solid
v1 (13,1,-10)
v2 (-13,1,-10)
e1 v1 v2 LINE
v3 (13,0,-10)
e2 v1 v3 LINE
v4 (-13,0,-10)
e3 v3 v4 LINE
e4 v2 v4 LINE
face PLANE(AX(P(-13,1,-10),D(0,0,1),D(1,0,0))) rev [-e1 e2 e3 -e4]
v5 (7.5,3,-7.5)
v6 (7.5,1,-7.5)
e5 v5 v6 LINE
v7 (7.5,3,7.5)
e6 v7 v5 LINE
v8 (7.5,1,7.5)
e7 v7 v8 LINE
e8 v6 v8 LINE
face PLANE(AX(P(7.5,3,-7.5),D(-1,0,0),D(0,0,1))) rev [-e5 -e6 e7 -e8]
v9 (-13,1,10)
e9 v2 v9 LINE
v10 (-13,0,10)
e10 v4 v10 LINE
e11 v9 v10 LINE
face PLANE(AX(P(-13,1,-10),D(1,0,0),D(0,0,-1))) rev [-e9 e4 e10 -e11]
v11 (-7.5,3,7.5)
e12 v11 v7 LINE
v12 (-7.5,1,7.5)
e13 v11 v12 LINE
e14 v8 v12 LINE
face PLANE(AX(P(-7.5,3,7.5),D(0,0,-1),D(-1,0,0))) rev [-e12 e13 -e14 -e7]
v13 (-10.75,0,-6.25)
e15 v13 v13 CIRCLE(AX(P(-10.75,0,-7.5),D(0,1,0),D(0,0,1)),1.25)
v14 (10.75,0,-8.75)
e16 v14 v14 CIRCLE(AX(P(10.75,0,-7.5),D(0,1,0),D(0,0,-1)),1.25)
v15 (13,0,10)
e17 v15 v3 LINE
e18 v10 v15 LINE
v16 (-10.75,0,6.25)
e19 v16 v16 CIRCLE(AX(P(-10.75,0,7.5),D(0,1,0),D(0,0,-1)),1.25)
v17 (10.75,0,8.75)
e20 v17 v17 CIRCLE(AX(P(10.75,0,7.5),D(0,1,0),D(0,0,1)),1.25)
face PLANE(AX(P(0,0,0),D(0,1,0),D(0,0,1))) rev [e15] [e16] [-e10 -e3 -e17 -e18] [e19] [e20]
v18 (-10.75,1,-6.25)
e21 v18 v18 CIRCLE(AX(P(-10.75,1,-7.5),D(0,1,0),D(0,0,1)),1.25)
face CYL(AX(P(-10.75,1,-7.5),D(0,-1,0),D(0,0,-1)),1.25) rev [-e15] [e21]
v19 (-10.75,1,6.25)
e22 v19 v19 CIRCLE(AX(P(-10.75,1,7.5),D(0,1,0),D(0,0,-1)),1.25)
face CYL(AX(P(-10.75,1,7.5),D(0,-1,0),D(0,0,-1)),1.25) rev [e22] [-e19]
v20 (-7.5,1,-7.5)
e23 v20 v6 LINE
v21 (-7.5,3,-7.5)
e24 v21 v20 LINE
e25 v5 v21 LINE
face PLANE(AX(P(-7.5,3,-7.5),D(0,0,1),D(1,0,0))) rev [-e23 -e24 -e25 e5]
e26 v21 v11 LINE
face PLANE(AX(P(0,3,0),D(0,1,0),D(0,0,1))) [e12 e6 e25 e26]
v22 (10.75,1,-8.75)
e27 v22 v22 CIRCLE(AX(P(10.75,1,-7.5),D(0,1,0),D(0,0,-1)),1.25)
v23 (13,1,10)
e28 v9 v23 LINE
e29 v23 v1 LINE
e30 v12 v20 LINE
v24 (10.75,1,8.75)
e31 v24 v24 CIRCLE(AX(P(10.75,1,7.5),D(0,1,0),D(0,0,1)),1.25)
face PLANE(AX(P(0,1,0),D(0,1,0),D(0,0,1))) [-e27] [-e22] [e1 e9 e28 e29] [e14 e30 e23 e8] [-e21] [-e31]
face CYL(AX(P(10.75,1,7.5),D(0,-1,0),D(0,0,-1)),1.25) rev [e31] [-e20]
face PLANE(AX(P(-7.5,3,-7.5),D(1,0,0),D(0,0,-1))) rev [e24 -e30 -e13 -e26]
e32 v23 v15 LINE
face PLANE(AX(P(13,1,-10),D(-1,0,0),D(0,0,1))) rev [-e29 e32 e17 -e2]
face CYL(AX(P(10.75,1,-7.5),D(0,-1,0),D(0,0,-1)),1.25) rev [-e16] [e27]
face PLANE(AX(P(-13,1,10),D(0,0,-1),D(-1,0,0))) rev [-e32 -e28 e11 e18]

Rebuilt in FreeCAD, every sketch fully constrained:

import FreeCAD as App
import Part
import Sketcher
Q = App.Units.Quantity

doc = App.newDocument("Part")
body = doc.addObject("PartDesign::Body", "Body")

# Sketch on XZ plane
sketch1 = body.newObject("Sketcher::SketchObject", "Sketch")
sketch1.AttachmentSupport = (doc.getObject("XZ_Plane"), [""])
sketch1.MapMode = "FlatFace"
sketch1.addGeometry([
    Part.LineSegment(App.Vector(-13, -10, 0), App.Vector(-13, 10, 0)),
    Part.LineSegment(App.Vector(-13, 10, 0), App.Vector(13, 10, 0)),
    Part.LineSegment(App.Vector(13, 10, 0), App.Vector(13, -10, 0)),
    Part.LineSegment(App.Vector(13, -10, 0), App.Vector(-13, -10, 0)),
], False)
sketch1.addConstraint([
    Sketcher.Constraint("Coincident", 0, 2, 1, 1),
    Sketcher.Constraint("Coincident", 1, 2, 2, 1),
    Sketcher.Constraint("Coincident", 2, 2, 3, 1),
    Sketcher.Constraint("Coincident", 3, 2, 0, 1),
    Sketcher.Constraint("Vertical", 0),
    Sketcher.Constraint("Horizontal", 1),
    Sketcher.Constraint("Vertical", 2),
    Sketcher.Constraint("Horizontal", 3),
    Sketcher.Constraint("Symmetric", 0, 2, 2, 2, -1, 1),
    Sketcher.Constraint("DistanceX", 1, 1, 1, 2, Q("26 mm")),
    Sketcher.Constraint("DistanceY", 0, 1, 0, 2, Q("20 mm")),
])
pad1 = body.newObject("PartDesign::Pad", "Pad")
pad1.Profile = sketch1
pad1.Length = 1
pad1.Reversed = True

# Sketch on XZ plane
sketch2 = body.newObject("Sketcher::SketchObject", "Sketch001")
sketch2.AttachmentSupport = (doc.getObject("XZ_Plane"), [""])
sketch2.MapMode = "FlatFace"
sketch2.addGeometry([
    Part.Circle(App.Vector(-10.8, -7.5, 0), App.Vector(0, 0, 1), 1.2),
    Part.Circle(App.Vector(-10.8, 7.5, 0), App.Vector(0, 0, 1), 1.2),
    Part.Circle(App.Vector(10.8, 7.5, 0), App.Vector(0, 0, 1), 1.2),
    Part.Circle(App.Vector(10.8, -7.5, 0), App.Vector(0, 0, 1), 1.2),
], False)
sketch2.addConstraint([
    Sketcher.Constraint("Equal", 0, 1),
    Sketcher.Constraint("Equal", 1, 2),
    Sketcher.Constraint("Equal", 2, 3),
    Sketcher.Constraint("Symmetric", 0, 3, 2, 3, -1, 1),
    Sketcher.Constraint("Symmetric", 1, 3, 3, 3, -1, 1),
    Sketcher.Constraint("Symmetric", 1, 3, 2, 3, -2),
    Sketcher.Constraint("Diameter", 0, Q("2.5 mm")),
    Sketcher.Constraint("DistanceY", 0, 3, 1, 3, Q("15 mm")),
    Sketcher.Constraint("DistanceX", 1, 3, 2, 3, Q("21.5 mm")),
])
pocket1 = body.newObject("PartDesign::Pocket", "Pocket")
pocket1.Profile = sketch2
pocket1.Length = 1

# Sketch on XZ plane
sketch3 = body.newObject("Sketcher::SketchObject", "Sketch002")
sketch3.AttachmentSupport = (doc.getObject("XZ_Plane"), [""])
sketch3.MapMode = "FlatFace"
sketch3.addGeometry([
    Part.LineSegment(App.Vector(-8, -8, 0), App.Vector(-8, 8, 0)),
    Part.LineSegment(App.Vector(-8, 8, 0), App.Vector(8, 8, 0)),
    Part.LineSegment(App.Vector(8, 8, 0), App.Vector(8, -8, 0)),
    Part.LineSegment(App.Vector(8, -8, 0), App.Vector(-8, -8, 0)),
], False)
sketch3.addConstraint([
    Sketcher.Constraint("Coincident", 0, 2, 1, 1),
    Sketcher.Constraint("Coincident", 1, 2, 2, 1),
    Sketcher.Constraint("Coincident", 2, 2, 3, 1),
    Sketcher.Constraint("Coincident", 3, 2, 0, 1),
    Sketcher.Constraint("Vertical", 0),
    Sketcher.Constraint("Horizontal", 1),
    Sketcher.Constraint("Vertical", 2),
    Sketcher.Constraint("Horizontal", 3),
    Sketcher.Constraint("Symmetric", 0, 2, 2, 2, -1, 1),
    Sketcher.Constraint("Equal", 3, 0),
    Sketcher.Constraint("DistanceX", 1, 1, 1, 2, Q("15 mm")),
])
pad2 = body.newObject("PartDesign::Pad", "Pad001")
pad2.Profile = sketch3
pad2.Length = 3
pad2.Reversed = True

doc.recompute()
